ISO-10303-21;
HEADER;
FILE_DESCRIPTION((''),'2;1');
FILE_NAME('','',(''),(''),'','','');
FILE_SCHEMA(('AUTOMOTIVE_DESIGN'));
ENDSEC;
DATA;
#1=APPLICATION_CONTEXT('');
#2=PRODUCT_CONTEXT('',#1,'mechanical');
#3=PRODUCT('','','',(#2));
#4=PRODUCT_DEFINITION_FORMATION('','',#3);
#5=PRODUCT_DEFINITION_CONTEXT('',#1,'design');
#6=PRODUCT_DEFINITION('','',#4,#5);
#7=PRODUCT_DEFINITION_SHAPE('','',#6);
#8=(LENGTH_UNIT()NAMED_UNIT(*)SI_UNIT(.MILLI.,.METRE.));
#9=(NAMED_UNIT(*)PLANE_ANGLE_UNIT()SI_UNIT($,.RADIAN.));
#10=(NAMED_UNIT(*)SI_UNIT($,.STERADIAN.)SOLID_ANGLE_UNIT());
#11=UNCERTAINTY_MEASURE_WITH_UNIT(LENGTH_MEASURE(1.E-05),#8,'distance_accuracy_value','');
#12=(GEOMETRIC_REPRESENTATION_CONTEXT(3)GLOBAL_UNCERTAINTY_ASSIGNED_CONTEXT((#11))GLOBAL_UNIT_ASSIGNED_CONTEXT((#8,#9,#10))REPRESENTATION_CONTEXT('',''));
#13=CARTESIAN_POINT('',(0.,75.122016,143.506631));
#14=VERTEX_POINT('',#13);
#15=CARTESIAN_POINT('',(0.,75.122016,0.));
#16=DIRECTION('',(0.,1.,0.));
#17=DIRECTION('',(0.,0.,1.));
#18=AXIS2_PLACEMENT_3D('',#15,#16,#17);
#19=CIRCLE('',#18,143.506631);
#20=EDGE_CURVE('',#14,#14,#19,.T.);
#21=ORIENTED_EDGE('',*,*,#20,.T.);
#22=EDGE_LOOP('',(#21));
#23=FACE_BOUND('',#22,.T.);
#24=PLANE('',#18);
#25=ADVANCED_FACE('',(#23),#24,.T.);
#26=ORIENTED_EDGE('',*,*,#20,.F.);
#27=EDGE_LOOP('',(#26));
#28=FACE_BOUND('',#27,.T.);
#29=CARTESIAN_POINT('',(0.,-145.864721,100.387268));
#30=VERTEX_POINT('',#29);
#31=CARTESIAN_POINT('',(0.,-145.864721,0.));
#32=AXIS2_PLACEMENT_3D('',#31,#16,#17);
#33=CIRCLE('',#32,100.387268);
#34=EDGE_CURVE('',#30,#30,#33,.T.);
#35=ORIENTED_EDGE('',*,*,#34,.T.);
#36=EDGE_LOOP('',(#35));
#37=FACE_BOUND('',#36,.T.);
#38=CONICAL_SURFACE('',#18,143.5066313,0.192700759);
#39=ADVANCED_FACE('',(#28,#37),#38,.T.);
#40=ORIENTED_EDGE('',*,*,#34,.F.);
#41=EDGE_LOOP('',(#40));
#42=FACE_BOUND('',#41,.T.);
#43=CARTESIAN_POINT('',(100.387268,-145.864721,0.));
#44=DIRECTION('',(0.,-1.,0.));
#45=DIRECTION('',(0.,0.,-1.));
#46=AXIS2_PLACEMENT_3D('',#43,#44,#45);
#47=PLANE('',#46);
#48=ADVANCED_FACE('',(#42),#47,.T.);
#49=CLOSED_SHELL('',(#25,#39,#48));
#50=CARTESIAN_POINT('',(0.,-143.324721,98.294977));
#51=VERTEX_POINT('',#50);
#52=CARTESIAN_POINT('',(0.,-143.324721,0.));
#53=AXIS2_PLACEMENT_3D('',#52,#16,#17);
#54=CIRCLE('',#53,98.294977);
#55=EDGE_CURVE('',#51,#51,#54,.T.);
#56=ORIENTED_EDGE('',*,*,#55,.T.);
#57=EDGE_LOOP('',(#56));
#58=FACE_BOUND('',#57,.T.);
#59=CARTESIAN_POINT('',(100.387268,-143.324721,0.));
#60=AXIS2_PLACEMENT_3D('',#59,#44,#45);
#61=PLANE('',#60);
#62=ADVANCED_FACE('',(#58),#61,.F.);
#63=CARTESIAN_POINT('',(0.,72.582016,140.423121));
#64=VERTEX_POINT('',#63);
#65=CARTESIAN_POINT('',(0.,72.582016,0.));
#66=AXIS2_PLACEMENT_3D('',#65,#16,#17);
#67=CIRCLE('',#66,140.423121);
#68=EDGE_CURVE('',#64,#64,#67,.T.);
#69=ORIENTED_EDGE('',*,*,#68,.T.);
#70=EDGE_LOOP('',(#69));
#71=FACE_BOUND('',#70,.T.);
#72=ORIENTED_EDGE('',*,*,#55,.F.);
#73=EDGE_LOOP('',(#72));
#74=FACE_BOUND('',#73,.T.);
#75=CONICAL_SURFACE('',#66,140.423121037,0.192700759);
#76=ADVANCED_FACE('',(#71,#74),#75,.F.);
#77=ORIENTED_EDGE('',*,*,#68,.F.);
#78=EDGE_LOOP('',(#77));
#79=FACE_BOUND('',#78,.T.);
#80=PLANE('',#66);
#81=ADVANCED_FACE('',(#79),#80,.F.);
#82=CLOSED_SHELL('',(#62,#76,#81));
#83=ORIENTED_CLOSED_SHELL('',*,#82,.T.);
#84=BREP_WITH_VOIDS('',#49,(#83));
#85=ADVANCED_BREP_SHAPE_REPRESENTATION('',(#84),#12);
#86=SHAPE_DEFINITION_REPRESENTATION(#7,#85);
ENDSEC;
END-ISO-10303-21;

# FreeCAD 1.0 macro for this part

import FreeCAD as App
import Part
import Sketcher
from FreeCAD import Vector
Q = App.Units.Quantity


def add_polygon(sketch, points):
    """Adds a closed chain of lines whose ends are joined by coincident constraints."""
    first, n = sketch.GeometryCount, len(points)
    for a, b in zip(points, points[1:] + points[:1]):
        sketch.addGeometry(Part.LineSegment(App.Vector(*a, 0), App.Vector(*b, 0)), False)
    for i in range(n):
        sketch.addConstraint(Sketcher.Constraint("Coincident", first + i, 2, first + (i + 1) % n, 1))

doc = App.newDocument("Part")
body = doc.addObject("PartDesign::Body", "Body")

# Sketch on XY plane
sketch1 = body.newObject("Sketcher::SketchObject", "Sketch")
sketch1.AttachmentSupport = (doc.getObject("XY_Plane"), [""])
sketch1.MapMode = "FlatFace"
add_polygon(sketch1, [(143.506631, 75.122016), (0, 75.122016), (0, 72.582016), (140.423121, 72.582016), (98.294977, -143.324721), (0, -143.324721), (0, -145.864721), (100.387268, -145.864721)])  # lines 0-7
sketch1.addConstraint([
    Sketcher.Constraint("Horizontal", 0),
    Sketcher.Constraint("Vertical", 1),
    Sketcher.Constraint("Horizontal", 2),
    Sketcher.Constraint("Horizontal", 4),
    Sketcher.Constraint("Vertical", 5),
    Sketcher.Constraint("Horizontal", 6),
    Sketcher.Constraint("PointOnObject", 0, 2, -2),
    Sketcher.Constraint("PointOnObject", 4, 2, -2),
    Sketcher.Constraint("Parallel", 3, 7),
    Sketcher.Constraint("Equal", 1, 5),
    Sketcher.Constraint("DistanceY", 1, 2, 1, 1, Q("0.1 in")),
    Sketcher.Constraint("DistanceX", 0, 2, 0, 1, 143.506631),
    Sketcher.Constraint("DistanceX", 2, 1, 2, 2, 140.423121),
    Sketcher.Constraint("Distance", 7, 225.154209),
    Sketcher.Constraint("DistanceX", 4, 2, 4, 1, 98.294977),
    Sketcher.Constraint("DistanceY", 3, 2, -1, 1, 143.324721),
])
revolution = body.newObject("PartDesign::Revolution", "Revolution")
revolution.Profile = sketch1
revolution.ReferenceAxis = (sketch1, ["V_Axis"])
revolution.Angle = 360

doc.recompute()
